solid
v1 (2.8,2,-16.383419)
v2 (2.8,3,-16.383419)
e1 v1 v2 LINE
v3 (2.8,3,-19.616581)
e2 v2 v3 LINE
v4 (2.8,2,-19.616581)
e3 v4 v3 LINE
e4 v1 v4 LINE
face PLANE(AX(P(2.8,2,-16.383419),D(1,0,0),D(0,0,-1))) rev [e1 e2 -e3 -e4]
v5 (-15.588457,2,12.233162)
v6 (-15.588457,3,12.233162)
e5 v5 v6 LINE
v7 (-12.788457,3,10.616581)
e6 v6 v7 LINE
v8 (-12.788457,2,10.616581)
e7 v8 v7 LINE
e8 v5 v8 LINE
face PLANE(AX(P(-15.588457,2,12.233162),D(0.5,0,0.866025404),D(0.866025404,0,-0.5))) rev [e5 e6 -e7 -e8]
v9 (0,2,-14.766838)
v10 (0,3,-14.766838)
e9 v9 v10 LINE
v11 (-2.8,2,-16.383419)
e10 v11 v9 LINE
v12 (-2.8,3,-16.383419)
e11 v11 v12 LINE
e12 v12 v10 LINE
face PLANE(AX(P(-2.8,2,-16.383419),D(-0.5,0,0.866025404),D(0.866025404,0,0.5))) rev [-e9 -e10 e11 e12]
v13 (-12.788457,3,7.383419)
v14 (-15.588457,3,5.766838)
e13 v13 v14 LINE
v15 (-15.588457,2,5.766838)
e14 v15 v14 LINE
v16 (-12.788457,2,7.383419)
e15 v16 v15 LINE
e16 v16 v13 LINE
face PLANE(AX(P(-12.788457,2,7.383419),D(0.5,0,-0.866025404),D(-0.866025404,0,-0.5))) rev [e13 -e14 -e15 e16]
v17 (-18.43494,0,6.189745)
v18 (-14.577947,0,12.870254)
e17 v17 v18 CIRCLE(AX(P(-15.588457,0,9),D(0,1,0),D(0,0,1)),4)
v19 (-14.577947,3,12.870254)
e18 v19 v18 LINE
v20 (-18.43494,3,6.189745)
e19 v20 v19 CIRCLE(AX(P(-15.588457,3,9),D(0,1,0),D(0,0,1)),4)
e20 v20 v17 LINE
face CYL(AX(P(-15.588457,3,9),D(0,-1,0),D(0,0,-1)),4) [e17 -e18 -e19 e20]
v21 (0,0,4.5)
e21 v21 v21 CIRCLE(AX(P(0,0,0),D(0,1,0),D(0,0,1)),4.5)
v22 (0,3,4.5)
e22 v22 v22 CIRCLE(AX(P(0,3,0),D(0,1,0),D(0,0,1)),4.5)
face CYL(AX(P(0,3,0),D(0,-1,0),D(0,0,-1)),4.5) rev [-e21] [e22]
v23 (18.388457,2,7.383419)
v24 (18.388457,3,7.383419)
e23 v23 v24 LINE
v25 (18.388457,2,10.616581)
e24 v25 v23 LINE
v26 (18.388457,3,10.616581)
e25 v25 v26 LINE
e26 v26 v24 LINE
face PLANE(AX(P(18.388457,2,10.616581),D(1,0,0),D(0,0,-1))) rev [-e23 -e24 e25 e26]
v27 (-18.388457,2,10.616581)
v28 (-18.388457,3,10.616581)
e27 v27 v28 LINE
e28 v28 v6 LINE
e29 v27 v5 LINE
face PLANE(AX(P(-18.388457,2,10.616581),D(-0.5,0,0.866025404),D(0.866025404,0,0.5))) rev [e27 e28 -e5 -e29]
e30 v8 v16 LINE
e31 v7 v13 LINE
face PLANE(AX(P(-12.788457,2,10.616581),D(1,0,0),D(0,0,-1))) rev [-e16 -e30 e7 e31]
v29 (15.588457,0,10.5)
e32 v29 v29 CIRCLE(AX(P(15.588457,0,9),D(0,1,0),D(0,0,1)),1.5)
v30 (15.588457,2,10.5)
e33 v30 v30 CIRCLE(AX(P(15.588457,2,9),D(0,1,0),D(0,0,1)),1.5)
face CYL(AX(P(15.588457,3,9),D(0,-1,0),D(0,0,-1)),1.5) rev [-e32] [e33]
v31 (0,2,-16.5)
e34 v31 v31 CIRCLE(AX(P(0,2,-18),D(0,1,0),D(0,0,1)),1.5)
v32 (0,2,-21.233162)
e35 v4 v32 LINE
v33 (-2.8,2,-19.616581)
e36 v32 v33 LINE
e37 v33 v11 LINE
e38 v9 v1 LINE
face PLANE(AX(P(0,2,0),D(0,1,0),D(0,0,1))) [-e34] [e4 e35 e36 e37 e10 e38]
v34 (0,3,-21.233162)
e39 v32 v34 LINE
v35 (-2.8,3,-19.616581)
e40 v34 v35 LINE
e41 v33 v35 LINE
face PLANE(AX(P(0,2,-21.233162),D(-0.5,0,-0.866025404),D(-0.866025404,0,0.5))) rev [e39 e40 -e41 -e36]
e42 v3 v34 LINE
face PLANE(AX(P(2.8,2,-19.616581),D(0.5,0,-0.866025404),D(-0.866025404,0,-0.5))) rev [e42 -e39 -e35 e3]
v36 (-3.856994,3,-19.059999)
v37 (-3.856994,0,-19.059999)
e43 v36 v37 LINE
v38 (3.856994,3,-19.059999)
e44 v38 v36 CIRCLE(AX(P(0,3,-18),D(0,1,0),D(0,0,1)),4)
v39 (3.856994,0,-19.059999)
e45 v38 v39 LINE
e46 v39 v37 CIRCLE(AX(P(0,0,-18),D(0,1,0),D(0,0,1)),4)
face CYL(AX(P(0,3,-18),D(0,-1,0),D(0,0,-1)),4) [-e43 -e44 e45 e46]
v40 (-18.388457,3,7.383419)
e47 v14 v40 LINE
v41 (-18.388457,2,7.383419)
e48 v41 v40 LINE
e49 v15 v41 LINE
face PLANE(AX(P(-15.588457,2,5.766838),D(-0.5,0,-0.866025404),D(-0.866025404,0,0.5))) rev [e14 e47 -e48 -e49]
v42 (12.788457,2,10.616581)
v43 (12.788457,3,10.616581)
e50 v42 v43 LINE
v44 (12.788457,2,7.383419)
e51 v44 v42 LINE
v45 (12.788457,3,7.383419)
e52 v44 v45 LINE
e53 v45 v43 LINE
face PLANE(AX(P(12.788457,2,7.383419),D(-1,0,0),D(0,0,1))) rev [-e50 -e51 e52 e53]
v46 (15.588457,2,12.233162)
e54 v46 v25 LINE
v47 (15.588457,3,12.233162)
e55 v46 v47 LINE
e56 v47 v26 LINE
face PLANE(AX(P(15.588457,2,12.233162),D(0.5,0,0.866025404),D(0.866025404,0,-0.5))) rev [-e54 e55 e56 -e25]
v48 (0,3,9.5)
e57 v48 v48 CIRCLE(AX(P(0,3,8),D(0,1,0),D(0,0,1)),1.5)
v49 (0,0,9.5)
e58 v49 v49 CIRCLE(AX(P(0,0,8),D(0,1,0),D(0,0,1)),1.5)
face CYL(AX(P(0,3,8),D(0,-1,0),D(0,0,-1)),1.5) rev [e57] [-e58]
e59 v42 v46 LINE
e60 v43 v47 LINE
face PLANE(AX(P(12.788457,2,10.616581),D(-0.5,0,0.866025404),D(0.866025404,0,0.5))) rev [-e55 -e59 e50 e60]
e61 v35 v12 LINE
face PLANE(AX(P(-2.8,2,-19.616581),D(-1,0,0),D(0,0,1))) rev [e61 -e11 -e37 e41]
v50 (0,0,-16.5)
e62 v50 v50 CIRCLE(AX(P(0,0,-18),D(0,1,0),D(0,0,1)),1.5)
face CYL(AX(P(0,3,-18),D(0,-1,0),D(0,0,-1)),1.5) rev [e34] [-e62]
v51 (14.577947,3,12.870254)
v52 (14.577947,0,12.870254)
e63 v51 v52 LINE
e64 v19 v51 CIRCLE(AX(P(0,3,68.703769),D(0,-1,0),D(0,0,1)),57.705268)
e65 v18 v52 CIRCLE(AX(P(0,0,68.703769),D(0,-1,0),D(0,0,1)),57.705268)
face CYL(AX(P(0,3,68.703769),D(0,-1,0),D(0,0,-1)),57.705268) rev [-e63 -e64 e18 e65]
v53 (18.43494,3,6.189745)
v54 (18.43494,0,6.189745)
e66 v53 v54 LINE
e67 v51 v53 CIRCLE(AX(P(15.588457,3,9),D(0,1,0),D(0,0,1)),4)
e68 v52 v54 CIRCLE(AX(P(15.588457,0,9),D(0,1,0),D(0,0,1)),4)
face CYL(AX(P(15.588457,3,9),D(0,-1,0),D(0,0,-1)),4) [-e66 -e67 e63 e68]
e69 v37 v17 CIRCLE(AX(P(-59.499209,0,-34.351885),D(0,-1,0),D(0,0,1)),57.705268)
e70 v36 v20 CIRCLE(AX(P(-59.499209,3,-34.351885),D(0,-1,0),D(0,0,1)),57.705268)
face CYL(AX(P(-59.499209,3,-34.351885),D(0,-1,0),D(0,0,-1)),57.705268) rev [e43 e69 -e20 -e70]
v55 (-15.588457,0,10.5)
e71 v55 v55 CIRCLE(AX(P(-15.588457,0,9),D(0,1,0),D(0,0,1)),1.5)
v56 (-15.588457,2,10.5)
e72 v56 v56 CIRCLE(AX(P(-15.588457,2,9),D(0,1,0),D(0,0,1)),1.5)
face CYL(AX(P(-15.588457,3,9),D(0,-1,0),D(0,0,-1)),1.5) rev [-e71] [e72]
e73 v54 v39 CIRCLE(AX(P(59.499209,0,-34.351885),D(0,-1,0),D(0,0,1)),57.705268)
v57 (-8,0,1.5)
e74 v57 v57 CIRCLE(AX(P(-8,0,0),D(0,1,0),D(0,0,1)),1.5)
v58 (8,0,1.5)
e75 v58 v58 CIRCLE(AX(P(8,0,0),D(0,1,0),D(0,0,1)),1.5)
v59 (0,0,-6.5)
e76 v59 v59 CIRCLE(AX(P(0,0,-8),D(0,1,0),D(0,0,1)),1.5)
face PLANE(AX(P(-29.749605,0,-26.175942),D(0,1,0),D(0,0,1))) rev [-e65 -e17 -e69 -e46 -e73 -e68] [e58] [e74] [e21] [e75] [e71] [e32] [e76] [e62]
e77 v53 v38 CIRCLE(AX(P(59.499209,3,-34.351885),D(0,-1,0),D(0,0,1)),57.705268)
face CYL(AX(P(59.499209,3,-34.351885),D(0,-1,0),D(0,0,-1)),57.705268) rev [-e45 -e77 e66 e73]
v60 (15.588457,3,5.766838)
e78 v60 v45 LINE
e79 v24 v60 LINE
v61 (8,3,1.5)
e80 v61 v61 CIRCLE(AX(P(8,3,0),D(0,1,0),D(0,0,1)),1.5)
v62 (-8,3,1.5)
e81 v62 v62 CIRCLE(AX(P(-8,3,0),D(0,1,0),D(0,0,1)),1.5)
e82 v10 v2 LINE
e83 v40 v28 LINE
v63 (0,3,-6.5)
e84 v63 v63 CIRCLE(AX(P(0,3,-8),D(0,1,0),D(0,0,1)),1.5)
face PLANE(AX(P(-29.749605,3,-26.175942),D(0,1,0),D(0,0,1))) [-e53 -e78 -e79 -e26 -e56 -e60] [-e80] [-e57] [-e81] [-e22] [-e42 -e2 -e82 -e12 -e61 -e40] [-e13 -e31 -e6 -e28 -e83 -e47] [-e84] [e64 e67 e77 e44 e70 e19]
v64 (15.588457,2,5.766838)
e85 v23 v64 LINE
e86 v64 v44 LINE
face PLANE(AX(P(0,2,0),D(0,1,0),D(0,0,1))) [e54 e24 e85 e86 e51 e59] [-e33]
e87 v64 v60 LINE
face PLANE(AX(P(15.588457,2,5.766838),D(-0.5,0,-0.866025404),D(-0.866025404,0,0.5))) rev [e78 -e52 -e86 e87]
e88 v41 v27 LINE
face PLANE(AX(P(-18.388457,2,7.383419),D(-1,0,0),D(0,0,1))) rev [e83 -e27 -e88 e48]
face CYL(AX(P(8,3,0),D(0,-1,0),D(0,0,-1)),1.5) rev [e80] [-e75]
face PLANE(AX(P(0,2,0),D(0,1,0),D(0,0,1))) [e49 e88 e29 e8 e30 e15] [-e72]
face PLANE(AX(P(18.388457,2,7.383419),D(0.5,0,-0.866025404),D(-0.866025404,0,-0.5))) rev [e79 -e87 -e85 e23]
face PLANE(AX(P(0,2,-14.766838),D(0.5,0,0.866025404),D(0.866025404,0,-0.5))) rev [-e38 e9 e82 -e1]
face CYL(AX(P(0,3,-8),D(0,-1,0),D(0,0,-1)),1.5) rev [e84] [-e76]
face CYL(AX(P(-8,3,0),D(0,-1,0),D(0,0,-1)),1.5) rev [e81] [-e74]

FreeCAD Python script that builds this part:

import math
import FreeCAD as App
import Part
import Sketcher

V = App.Vector
Q = App.Units.Quantity

doc = App.newDocument("Part")
params = doc.addObject("Spreadsheet::Sheet", "Params")
for row, (alias, value) in enumerate([
    ("sketch1_diameter", "3 mm"),
    ("sketch1_diameter2", "9 mm"),
    ("sketch1_radius", "4 mm"),
    ("pad1_length", "3 mm"),
    ("pocket1_length", "1 mm"),
], start=1):
    params.set(f"A{row}", alias)
    params.set(f"B{row}", "=" + value)
    params.setAlias(f"B{row}", alias)

body = doc.addObject("PartDesign::Body", "Body")

sketch1 = doc.addObject("Sketcher::SketchObject", "Sketch")
body.addObject(sketch1)
sketch1.AttachmentSupport = (doc.XZ_Plane, [""])
sketch1.MapMode = "FlatFace"
sketch1.addGeometry(Part.ArcOfCircle(Part.Circle(V(0, -18, 0), V(0, 0, 1), 4), math.radians(-165), math.radians(-15)), False)
sketch1.addGeometry(Part.ArcOfCircle(Part.Circle(V(-59.5, -34.4, 0), V(0, 0, 1), 57.7), math.radians(15), math.radians(45)), False)
sketch1.addGeometry(Part.ArcOfCircle(Part.Circle(V(-15.6, 9, 0), V(0, 0, 1), 4), math.radians(75), math.radians(225)), False)
sketch1.addGeometry(Part.ArcOfCircle(Part.Circle(V(0, 68.7, 0), V(0, 0, 1), 57.7), math.radians(-105), math.radians(-75)), False)
sketch1.addGeometry(Part.ArcOfCircle(Part.Circle(V(15.6, 9, 0), V(0, 0, 1), 4), math.radians(-45), math.radians(105)), False)
sketch1.addGeometry(Part.ArcOfCircle(Part.Circle(V(59.5, -34.4, 0), V(0, 0, 1), 57.7), math.radians(135), math.radians(165)), False)
sketch1.addGeometry(Part.Circle(V(-15.6, 9, 0), V(0, 0, 1), 1.5), False)
sketch1.addGeometry(Part.Circle(V(-8, 0, 0), V(0, 0, 1), 1.5), False)
sketch1.addGeometry(Part.Circle(V(0, 8, 0), V(0, 0, 1), 1.5), False)
sketch1.addGeometry(Part.Circle(V(15.6, 9, 0), V(0, 0, 1), 1.5), False)
sketch1.addGeometry(Part.Circle(V(0, 0, 0), V(0, 0, 1), 4.5), False)
sketch1.addGeometry(Part.Circle(V(8, 0, 0), V(0, 0, 1), 1.5), False)
sketch1.addGeometry(Part.Circle(V(0, -8, 0), V(0, 0, 1), 1.5), False)
sketch1.addGeometry(Part.Circle(V(0, -18, 0), V(0, 0, 1), 1.5), False)
sketch1.addConstraint(Sketcher.Constraint("Tangent", 0, 1, 1, 1))
sketch1.addConstraint(Sketcher.Constraint("Tangent", 1, 2, 2, 2))
sketch1.addConstraint(Sketcher.Constraint("Tangent", 2, 1, 3, 1))
sketch1.addConstraint(Sketcher.Constraint("Tangent", 3, 2, 4, 2))
sketch1.addConstraint(Sketcher.Constraint("Tangent", 4, 1, 5, 1))
sketch1.addConstraint(Sketcher.Constraint("Tangent", 5, 2, 0, 2))
sketch1.addConstraint(Sketcher.Constraint("Coincident", 10, 3, -1, 1))
sketch1.addConstraint(Sketcher.Constraint("Coincident", 6, 3, 2, 3))
sketch1.addConstraint(Sketcher.Constraint("Coincident", 9, 3, 4, 3))
sketch1.addConstraint(Sketcher.Constraint("Coincident", 13, 3, 0, 3))
sketch1.addConstraint(Sketcher.Constraint("Equal", 0, 2))
sketch1.addConstraint(Sketcher.Constraint("Equal", 1, 3))
sketch1.addConstraint(Sketcher.Constraint("Equal", 2, 4))
sketch1.addConstraint(Sketcher.Constraint("Equal", 3, 5))
sketch1.addConstraint(Sketcher.Constraint("Equal", 6, 7))
sketch1.addConstraint(Sketcher.Constraint("Equal", 7, 8))
sketch1.addConstraint(Sketcher.Constraint("Equal", 8, 9))
sketch1.addConstraint(Sketcher.Constraint("Equal", 9, 11))
sketch1.addConstraint(Sketcher.Constraint("Equal", 11, 12))
sketch1.addConstraint(Sketcher.Constraint("Equal", 12, 13))
sketch1.addConstraint(Sketcher.Constraint("Symmetric", 7, 3, 11, 3, -1, 1))
sketch1.addConstraint(Sketcher.Constraint("Symmetric", 8, 3, 12, 3, -1, 1))
sketch1.addConstraint(Sketcher.Constraint("Symmetric", 2, 3, 4, 3, -2))
sketch1.addConstraint(Sketcher.Constraint("PointOnObject", 0, 3, -2))
sketch1.addConstraint(Sketcher.Constraint("PointOnObject", 7, 3, -1))
sketch1.addConstraint(Sketcher.Constraint("PointOnObject", 8, 3, -2))
sketch1.addConstraint(Sketcher.Constraint("Diameter", 6, 3.0))
sketch1.addConstraint(Sketcher.Constraint("Diameter", 10, 9.0))
sketch1.addConstraint(Sketcher.Constraint("Radius", 0, 4.0))
sketch1.addConstraint(Sketcher.Constraint("DistanceY", 0, 3, -1, 1, 18.0))
sketch1.addConstraint(Sketcher.Constraint("DistanceY", -1, 1, 2, 3, 9.0))
sketch1.addConstraint(Sketcher.Constraint("DistanceX", 7, 3, -1, 1, 8.0))
sketch1.addConstraint(Sketcher.Constraint("DistanceY", -1, 1, 8, 3, 8.0))
sketch1.addConstraint(Sketcher.Constraint("DistanceY", 0, 1, -1, 1, 19.059999))
sketch1.addConstraint(Sketcher.Constraint("Radius", 1, 57.705268))
sketch1.setExpression("Constraints[26]", "Params.sketch1_diameter")
sketch1.setExpression("Constraints[27]", "Params.sketch1_diameter2")
sketch1.setExpression("Constraints[28]", "Params.sketch1_radius")
pad1 = doc.addObject("PartDesign::Pad", "Pad")
body.addObject(pad1)
pad1.Profile = sketch1
pad1.setExpression("Length", "Params.pad1_length")
pad1.Reversed = True

sketch2 = doc.addObject("Sketcher::SketchObject", "Sketch001")
body.addObject(sketch2)
sketch2.AttachmentSupport = (doc.XZ_Plane, [""])
sketch2.MapMode = "FlatFace"
sketch2.AttachmentOffset = App.Placement(V(0, 0, -3), App.Rotation())
sketch2.addGeometry(Part.LineSegment(V(0, -14.8, 0), V(2.8, -16.4, 0)), False)
sketch2.addGeometry(Part.LineSegment(V(2.8, -16.4, 0), V(2.8, -19.6, 0)), False)
sketch2.addGeometry(Part.LineSegment(V(2.8, -19.6, 0), V(0, -21.2, 0)), False)
sketch2.addGeometry(Part.LineSegment(V(0, -21.2, 0), V(-2.8, -19.6, 0)), False)
sketch2.addGeometry(Part.LineSegment(V(-2.8, -19.6, 0), V(-2.8, -16.4, 0)), False)
sketch2.addGeometry(Part.LineSegment(V(-2.8, -16.4, 0), V(0, -14.8, 0)), False)
sketch2.addGeometry(Part.LineSegment(V(12.8, 7.4, 0), V(12.8, 10.6, 0)), False)
sketch2.addGeometry(Part.LineSegment(V(12.8, 10.6, 0), V(15.6, 12.2, 0)), False)
sketch2.addGeometry(Part.LineSegment(V(15.6, 12.2, 0), V(18.4, 10.6, 0)), False)
sketch2.addGeometry(Part.LineSegment(V(18.4, 10.6, 0), V(18.4, 7.4, 0)), False)
sketch2.addGeometry(Part.LineSegment(V(18.4, 7.4, 0), V(15.6, 5.8, 0)), False)
sketch2.addGeometry(Part.LineSegment(V(15.6, 5.8, 0), V(12.8, 7.4, 0)), False)
sketch2.addGeometry(Part.LineSegment(V(-12.8, 7.4, 0), V(-15.6, 5.8, 0)), False)
sketch2.addGeometry(Part.LineSegment(V(-15.6, 5.8, 0), V(-18.4, 7.4, 0)), False)
sketch2.addGeometry(Part.LineSegment(V(-18.4, 7.4, 0), V(-18.4, 10.6, 0)), False)
sketch2.addGeometry(Part.LineSegment(V(-18.4, 10.6, 0), V(-15.6, 12.2, 0)), False)
sketch2.addGeometry(Part.LineSegment(V(-15.6, 12.2, 0), V(-12.8, 10.6, 0)), False)
sketch2.addGeometry(Part.LineSegment(V(-12.8, 10.6, 0), V(-12.8, 7.4, 0)), False)
sketch2.addConstraint(Sketcher.Constraint("Coincident", 0, 2, 1, 1))
sketch2.addConstraint(Sketcher.Constraint("Coincident", 1, 2, 2, 1))
sketch2.addConstraint(Sketcher.Constraint("Coincident", 2, 2, 3, 1))
sketch2.addConstraint(Sketcher.Constraint("Coincident", 3, 2, 4, 1))
sketch2.addConstraint(Sketcher.Constraint("Coincident", 4, 2, 5, 1))
sketch2.addConstraint(Sketcher.Constraint("Coincident", 5, 2, 0, 1))
sketch2.addConstraint(Sketcher.Constraint("Coincident", 6, 2, 7, 1))
sketch2.addConstraint(Sketcher.Constraint("Coincident", 7, 2, 8, 1))
sketch2.addConstraint(Sketcher.Constraint("Coincident", 8, 2, 9, 1))
sketch2.addConstraint(Sketcher.Constraint("Coincident", 9, 2, 10, 1))
sketch2.addConstraint(Sketcher.Constraint("Coincident", 10, 2, 11, 1))
sketch2.addConstraint(Sketcher.Constraint("Coincident", 11, 2, 6, 1))
sketch2.addConstraint(Sketcher.Constraint("Coincident", 12, 2, 13, 1))
sketch2.addConstraint(Sketcher.Constraint("Coincident", 13, 2, 14, 1))
sketch2.addConstraint(Sketcher.Constraint("Coincident", 14, 2, 15, 1))
sketch2.addConstraint(Sketcher.Constraint("Coincident", 15, 2, 16, 1))
sketch2.addConstraint(Sketcher.Constraint("Coincident", 16, 2, 17, 1))
sketch2.addConstraint(Sketcher.Constraint("Coincident", 17, 2, 12, 1))
sketch2.addConstraint(Sketcher.Constraint("Vertical", 1))
sketch2.addConstraint(Sketcher.Constraint("Vertical", 4))
sketch2.addConstraint(Sketcher.Constraint("Vertical", 6))
sketch2.addConstraint(Sketcher.Constraint("Vertical", 9))
sketch2.addConstraint(Sketcher.Constraint("Vertical", 14))
sketch2.addConstraint(Sketcher.Constraint("Vertical", 17))
sketch2.addConstraint(Sketcher.Constraint("Symmetric", 1, 2, 3, 2, -2))
sketch2.addConstraint(Sketcher.Constraint("Symmetric", 10, 2, 12, 2, -2))
sketch2.addConstraint(Sketcher.Constraint("Symmetric", 9, 2, 13, 2, -2))
sketch2.addConstraint(Sketcher.Constraint("Symmetric", 7, 2, 15, 2, -2))
sketch2.addConstraint(Sketcher.Constraint("Symmetric", 6, 2, 16, 2, -2))
sketch2.addConstraint(Sketcher.Constraint("PointOnObject", 2, 2, -2))
sketch2.addConstraint(Sketcher.Constraint("PointOnObject", 5, 2, -2))
sketch2.addConstraint(Sketcher.Constraint("Parallel", 0, 3))
sketch2.addConstraint(Sketcher.Constraint("Parallel", 2, 5))
sketch2.addConstraint(Sketcher.Constraint("Parallel", 5, 7))
sketch2.addConstraint(Sketcher.Constraint("Parallel", 3, 8))
sketch2.addConstraint(Sketcher.Constraint("Parallel", 7, 10))
sketch2.addConstraint(Sketcher.Constraint("Parallel", 8, 11))
sketch2.addConstraint(Sketcher.Constraint("Parallel", 10, 12))
sketch2.addConstraint(Sketcher.Constraint("Parallel", 12, 15))
sketch2.addConstraint(Sketcher.Constraint("Horizontal", 6, 2, 8, 2))
sketch2.addConstraint(Sketcher.Constraint("Horizontal", 9, 2, 11, 2))
sketch2.addConstraint(Sketcher.Constraint("Equal", 4, 6))
sketch2.addConstraint(Sketcher.Constraint("Equal", 5, 7))
sketch2.addConstraint(Sketcher.Constraint("Angle", 0, Q("-30 deg")))
sketch2.addConstraint(Sketcher.Constraint("DistanceY", 0, 2, 6, 2, 27.0))
sketch2.addConstraint(Sketcher.Constraint("DistanceX", -1, 1, 0, 2, 2.8))
sketch2.addConstraint(Sketcher.Constraint("DistanceY", 1, 2, 1, 1, 3.233162))
sketch2.addConstraint(Sketcher.Constraint("DistanceY", 0, 2, -1, 1, 16.383419))
sketch2.addConstraint(Sketcher.Constraint("DistanceX", -1, 1, 6, 2, 12.788457))
pocket1 = doc.addObject("PartDesign::Pocket", "Pocket")
body.addObject(pocket1)
pocket1.Profile = sketch2
pocket1.setExpression("Length", "Params.pocket1_length")
pocket1.Reversed = True

doc.recompute()
